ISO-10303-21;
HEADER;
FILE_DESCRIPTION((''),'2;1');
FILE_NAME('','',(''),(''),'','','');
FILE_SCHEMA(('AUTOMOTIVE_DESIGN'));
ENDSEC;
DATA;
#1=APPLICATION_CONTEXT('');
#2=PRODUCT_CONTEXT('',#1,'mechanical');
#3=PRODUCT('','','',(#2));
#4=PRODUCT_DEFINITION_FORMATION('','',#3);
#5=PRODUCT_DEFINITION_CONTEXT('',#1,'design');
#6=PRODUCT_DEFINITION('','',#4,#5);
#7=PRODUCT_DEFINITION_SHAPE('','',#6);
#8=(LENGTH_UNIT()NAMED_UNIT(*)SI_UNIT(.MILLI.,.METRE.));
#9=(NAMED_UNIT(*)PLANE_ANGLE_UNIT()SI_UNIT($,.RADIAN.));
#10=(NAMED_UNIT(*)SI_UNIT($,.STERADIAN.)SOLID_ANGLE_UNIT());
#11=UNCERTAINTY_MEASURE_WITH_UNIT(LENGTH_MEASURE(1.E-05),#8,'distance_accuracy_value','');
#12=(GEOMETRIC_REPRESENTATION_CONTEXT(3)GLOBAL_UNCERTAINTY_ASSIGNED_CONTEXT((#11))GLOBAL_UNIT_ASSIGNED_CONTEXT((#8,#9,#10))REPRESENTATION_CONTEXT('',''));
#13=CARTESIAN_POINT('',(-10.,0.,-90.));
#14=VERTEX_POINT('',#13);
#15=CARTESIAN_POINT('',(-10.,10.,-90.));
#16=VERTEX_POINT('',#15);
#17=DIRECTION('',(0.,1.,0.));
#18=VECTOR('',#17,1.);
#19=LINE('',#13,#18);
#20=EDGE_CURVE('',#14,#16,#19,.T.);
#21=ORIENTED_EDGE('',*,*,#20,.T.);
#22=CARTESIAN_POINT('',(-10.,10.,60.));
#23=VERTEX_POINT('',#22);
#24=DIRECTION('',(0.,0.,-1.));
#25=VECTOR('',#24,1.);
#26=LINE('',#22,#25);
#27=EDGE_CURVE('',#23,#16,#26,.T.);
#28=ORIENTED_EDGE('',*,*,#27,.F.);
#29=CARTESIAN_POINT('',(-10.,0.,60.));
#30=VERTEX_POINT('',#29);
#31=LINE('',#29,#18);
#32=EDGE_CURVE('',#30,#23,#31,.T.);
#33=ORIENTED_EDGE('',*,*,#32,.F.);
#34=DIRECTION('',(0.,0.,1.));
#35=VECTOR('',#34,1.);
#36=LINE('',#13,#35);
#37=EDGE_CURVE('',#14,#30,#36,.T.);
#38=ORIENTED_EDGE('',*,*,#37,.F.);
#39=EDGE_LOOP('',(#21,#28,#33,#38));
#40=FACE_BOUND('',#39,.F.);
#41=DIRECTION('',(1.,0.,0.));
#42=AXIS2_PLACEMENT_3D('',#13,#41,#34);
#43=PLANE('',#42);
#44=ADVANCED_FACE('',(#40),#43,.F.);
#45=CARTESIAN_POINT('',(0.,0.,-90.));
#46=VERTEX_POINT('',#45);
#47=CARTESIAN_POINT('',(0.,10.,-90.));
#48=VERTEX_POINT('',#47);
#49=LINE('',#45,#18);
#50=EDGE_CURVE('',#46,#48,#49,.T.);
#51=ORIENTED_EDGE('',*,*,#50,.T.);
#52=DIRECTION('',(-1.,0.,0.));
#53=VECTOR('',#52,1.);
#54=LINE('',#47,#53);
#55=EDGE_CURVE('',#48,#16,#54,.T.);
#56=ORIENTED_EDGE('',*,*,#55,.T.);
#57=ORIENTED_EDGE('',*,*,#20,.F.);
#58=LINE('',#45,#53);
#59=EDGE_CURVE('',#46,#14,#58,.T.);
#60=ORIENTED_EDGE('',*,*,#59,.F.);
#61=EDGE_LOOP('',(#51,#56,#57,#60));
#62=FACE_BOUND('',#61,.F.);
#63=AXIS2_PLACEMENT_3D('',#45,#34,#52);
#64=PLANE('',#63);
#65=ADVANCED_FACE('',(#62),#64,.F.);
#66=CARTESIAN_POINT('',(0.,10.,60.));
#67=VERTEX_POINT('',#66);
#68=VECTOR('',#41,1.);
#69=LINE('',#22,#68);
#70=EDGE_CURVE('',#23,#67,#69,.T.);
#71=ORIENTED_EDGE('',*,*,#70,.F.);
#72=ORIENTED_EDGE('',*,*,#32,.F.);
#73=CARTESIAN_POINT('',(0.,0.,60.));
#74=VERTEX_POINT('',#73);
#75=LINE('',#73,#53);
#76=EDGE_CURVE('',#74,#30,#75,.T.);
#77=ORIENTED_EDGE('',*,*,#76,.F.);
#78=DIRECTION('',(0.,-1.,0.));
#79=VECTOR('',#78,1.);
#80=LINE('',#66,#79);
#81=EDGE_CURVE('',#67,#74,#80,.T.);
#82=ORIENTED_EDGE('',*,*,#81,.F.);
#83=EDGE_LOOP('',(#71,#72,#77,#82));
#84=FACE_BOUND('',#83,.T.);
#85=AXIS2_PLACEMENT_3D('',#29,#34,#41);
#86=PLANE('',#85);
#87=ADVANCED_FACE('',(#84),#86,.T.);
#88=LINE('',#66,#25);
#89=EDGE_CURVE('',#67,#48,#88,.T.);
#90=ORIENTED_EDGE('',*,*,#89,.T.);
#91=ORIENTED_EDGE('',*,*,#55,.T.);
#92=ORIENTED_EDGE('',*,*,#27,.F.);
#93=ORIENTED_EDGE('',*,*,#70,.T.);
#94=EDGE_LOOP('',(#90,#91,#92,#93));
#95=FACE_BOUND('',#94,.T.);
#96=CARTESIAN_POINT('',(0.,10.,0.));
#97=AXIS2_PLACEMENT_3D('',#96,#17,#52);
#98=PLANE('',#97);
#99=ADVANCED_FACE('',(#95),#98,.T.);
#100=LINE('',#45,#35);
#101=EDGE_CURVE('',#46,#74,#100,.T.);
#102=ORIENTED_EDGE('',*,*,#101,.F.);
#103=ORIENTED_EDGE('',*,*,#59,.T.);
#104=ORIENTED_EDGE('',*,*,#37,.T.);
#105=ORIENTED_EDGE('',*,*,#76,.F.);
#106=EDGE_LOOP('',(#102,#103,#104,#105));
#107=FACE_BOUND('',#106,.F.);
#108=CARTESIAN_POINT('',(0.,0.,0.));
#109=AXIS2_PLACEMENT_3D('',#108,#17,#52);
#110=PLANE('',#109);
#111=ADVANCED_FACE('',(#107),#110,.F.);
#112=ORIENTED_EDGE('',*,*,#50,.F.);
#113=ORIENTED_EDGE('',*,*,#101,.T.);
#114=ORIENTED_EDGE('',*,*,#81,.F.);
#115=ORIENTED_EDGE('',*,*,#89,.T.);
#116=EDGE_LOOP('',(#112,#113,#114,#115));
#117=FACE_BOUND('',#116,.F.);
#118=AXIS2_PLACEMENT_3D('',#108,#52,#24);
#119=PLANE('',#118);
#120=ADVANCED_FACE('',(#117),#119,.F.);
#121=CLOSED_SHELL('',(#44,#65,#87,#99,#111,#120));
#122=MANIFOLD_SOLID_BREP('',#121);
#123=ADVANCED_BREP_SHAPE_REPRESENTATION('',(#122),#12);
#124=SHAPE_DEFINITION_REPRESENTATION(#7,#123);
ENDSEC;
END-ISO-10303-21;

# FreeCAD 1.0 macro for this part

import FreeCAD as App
import Part
import Sketcher
from FreeCAD import Vector
Q = App.Units.Quantity


def add_polygon(sketch, points):
    """Adds a closed chain of lines whose ends are joined by coincident constraints."""
    first, n = sketch.GeometryCount, len(points)
    for a, b in zip(points, points[1:] + points[:1]):
        sketch.addGeometry(Part.LineSegment(App.Vector(*a, 0), App.Vector(*b, 0)), False)
    for i in range(n):
        sketch.addConstraint(Sketcher.Constraint("Coincident", first + i, 2, first + (i + 1) % n, 1))

doc = App.newDocument("Part")
body = doc.addObject("PartDesign::Body", "Body")

sketch1 = doc.addObject("Sketcher::SketchObject", "Sketch")
body.addObject(sketch1)
sketch1.AttachmentSupport = (doc.XZ_Plane, [""])
sketch1.MapMode = "FlatFace"
add_polygon(sketch1, [(-10, 0), (0, 0), (0, -90), (-10, -90)])
sketch1.addConstraint([
    Sketcher.Constraint("Horizontal", 0),
    Sketcher.Constraint("Vertical", 1),
    Sketcher.Constraint("Horizontal", 2),
    Sketcher.Constraint("Vertical", 3),
    Sketcher.Constraint("Coincident", 0, 2, -1, 1),
    Sketcher.Constraint("DistanceX", 0, 1, 0, 2, Q("10 mm")),
    Sketcher.Constraint("DistanceY", 1, 2, 1, 1, Q("90 mm")),
])
pad1 = doc.addObject("PartDesign::Pad", "Pad")
body.addObject(pad1)
pad1.Profile = sketch1
pad1.Length = 10
pad1.Reversed = True

sketch2 = doc.addObject("Sketcher::SketchObject", "Sketch001")
body.addObject(sketch2)
sketch2.AttachmentSupport = (doc.XY_Plane, [""])
sketch2.MapMode = "FlatFace"
add_polygon(sketch2, [(-10, 10), (-10, 0), (0, 0), (0, 10)])
sketch2.addConstraint([
    Sketcher.Constraint("Vertical", 0),
    Sketcher.Constraint("Horizontal", 1),
    Sketcher.Constraint("Vertical", 2),
    Sketcher.Constraint("Horizontal", 3),
    Sketcher.Constraint("Coincident", 1, 2, -1, 1),
    Sketcher.Constraint("Equal", 3, 0),
    Sketcher.Constraint("DistanceX", 1, 1, 1, 2, Q("10 mm")),
])
pad2 = doc.addObject("PartDesign::Pad", "Pad001")
body.addObject(pad2)
pad2.Profile = sketch2
pad2.Length = 60

doc.recompute()
